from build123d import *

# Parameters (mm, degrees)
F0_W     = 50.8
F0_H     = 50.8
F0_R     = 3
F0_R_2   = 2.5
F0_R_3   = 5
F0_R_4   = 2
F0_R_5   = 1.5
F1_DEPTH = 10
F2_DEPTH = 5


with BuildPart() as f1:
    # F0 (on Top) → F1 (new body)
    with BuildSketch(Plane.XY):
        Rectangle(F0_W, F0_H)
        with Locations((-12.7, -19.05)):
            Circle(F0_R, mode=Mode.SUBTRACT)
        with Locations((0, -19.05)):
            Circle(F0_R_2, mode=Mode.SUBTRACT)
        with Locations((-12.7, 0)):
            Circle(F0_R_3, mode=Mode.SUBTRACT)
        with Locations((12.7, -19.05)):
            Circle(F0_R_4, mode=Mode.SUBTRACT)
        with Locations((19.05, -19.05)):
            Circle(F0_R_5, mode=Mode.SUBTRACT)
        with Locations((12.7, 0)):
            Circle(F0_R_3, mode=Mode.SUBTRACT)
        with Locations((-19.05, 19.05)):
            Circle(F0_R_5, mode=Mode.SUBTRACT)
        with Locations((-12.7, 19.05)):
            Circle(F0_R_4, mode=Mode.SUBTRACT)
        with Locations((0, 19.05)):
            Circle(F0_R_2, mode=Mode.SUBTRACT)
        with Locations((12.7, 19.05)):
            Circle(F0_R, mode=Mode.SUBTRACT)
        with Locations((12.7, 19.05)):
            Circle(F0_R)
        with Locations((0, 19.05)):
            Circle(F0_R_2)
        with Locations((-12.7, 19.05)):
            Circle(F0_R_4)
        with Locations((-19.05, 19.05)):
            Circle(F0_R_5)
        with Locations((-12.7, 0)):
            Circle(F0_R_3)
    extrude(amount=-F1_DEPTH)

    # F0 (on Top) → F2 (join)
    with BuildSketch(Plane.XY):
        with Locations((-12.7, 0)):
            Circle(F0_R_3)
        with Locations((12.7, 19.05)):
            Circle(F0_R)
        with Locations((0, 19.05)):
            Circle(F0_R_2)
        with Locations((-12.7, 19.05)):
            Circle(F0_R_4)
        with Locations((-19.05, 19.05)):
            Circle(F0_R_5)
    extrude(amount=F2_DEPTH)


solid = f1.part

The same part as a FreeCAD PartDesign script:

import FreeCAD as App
import Part
import Sketcher

V = App.Vector
Q = App.Units.Quantity


def add_polygon(sketch, points):
    """Adds a closed chain of lines whose ends are joined by coincident constraints."""
    first, n = sketch.GeometryCount, len(points)
    for a, b in zip(points, points[1:] + points[:1]):
        sketch.addGeometry(Part.LineSegment(App.Vector(*a, 0), App.Vector(*b, 0)), False)
    for i in range(n):
        sketch.addConstraint(Sketcher.Constraint("Coincident", first + i, 2, first + (i + 1) % n, 1))

doc = App.newDocument("Part")
params = doc.addObject("Spreadsheet::Sheet", "Params")
for row, (alias, value) in enumerate([
    ("sketch1_diameter", "6 mm"),
    ("sketch1_diameter2", "5 mm"),
    ("sketch1_diameter3", "4 mm"),
    ("sketch1_diameter4", "3 mm"),
    ("sketch1_diameter5", "10 mm"),
    ("pad1_length", "10 mm"),
    ("sketch2_diameter", "10 mm"),
    ("sketch2_diameter2", "6 mm"),
    ("sketch2_diameter3", "5 mm"),
    ("sketch2_diameter4", "4 mm"),
    ("sketch2_diameter5", "3 mm"),
    ("pad2_length", "5 mm"),
], start=1):
    params.set(f"A{row}", alias)
    params.set(f"B{row}", "=" + value)
    params.setAlias(f"B{row}", alias)

body = doc.addObject("PartDesign::Body", "Body")

# Sketch on XY plane
sketch1 = doc.addObject("Sketcher::SketchObject", "Sketch")
body.addObject(sketch1)
sketch1.AttachmentSupport = (doc.XY_Plane, [""])
sketch1.MapMode = "FlatFace"
add_polygon(sketch1, [(-25.4, 25.4), (-25.4, -25.4), (25.4, -25.4), (25.4, 25.4)])  # lines 0-3
sketch1.addGeometry(Part.Circle(V(-12.7, -19.1, 0), V(0, 0, 1), 3), False)  # 4
sketch1.addGeometry(Part.Circle(V(0, -19.1, 0), V(0, 0, 1), 2.5), False)  # 5
sketch1.addGeometry(Part.Circle(V(12.7, -19.1, 0), V(0, 0, 1), 2), False)  # 6
sketch1.addGeometry(Part.Circle(V(19.1, -19.1, 0), V(0, 0, 1), 1.5), False)  # 7
sketch1.addGeometry(Part.Circle(V(12.7, 0, 0), V(0, 0, 1), 5), False)  # 8
sketch1.addConstraint(Sketcher.Constraint("Vertical", 0))
sketch1.addConstraint(Sketcher.Constraint("Horizontal", 1))
sketch1.addConstraint(Sketcher.Constraint("Vertical", 2))
sketch1.addConstraint(Sketcher.Constraint("Horizontal", 3))
sketch1.addConstraint(Sketcher.Constraint("Symmetric", 0, 2, 2, 2, -1, 1))
sketch1.addConstraint(Sketcher.Constraint("Symmetric", 4, 3, 6, 3, -2))
sketch1.addConstraint(Sketcher.Constraint("PointOnObject", 5, 3, -2))
sketch1.addConstraint(Sketcher.Constraint("PointOnObject", 8, 3, -1))
sketch1.addConstraint(Sketcher.Constraint("Horizontal", 4, 3, 5, 3))
sketch1.addConstraint(Sketcher.Constraint("Horizontal", 6, 3, 7, 3))
sketch1.addConstraint(Sketcher.Constraint("Vertical", 6, 3, 8, 3))
sketch1.addConstraint(Sketcher.Constraint("Equal", 3, 0))
sketch1.addConstraint(Sketcher.Constraint("Diameter", 4, Q("6 mm")))
sketch1.addConstraint(Sketcher.Constraint("Diameter", 5, Q("5 mm")))
sketch1.addConstraint(Sketcher.Constraint("Diameter", 6, Q("4 mm")))
sketch1.addConstraint(Sketcher.Constraint("Diameter", 7, Q("3 mm")))
sketch1.addConstraint(Sketcher.Constraint("Diameter", 8, Q("10 mm")))
sketch1.addConstraint(Sketcher.Constraint("DistanceX", 1, 1, 1, 2, Q("50.8 mm")))
sketch1.addConstraint(Sketcher.Constraint("DistanceX", 4, 3, -1, 1, Q("12.7 mm")))
sketch1.addConstraint(Sketcher.Constraint("DistanceY", 4, 3, -1, 1, Q("19.05 mm")))
sketch1.addConstraint(Sketcher.Constraint("DistanceX", -1, 1, 7, 3, Q("19.05 mm")))
sketch1.setExpression("Constraints[16]", "Params.sketch1_diameter")
sketch1.setExpression("Constraints[17]", "Params.sketch1_diameter2")
sketch1.setExpression("Constraints[18]", "Params.sketch1_diameter3")
sketch1.setExpression("Constraints[19]", "Params.sketch1_diameter4")
sketch1.setExpression("Constraints[20]", "Params.sketch1_diameter5")
pad1 = doc.addObject("PartDesign::Pad", "Pad")
body.addObject(pad1)
pad1.Profile = sketch1
pad1.setExpression("Length", "Params.pad1_length")
pad1.Reversed = True

# Sketch on XY plane
sketch2 = doc.addObject("Sketcher::SketchObject", "Sketch001")
body.addObject(sketch2)
sketch2.AttachmentSupport = (doc.XY_Plane, [""])
sketch2.MapMode = "FlatFace"
sketch2.addGeometry(Part.Circle(V(-12.7, 0, 0), V(0, 0, 1), 5), False)
sketch2.addGeometry(Part.Circle(V(12.7, 19.1, 0), V(0, 0, 1), 3), False)
sketch2.addGeometry(Part.Circle(V(0, 19.1, 0), V(0, 0, 1), 2.5), False)
sketch2.addGeometry(Part.Circle(V(-12.7, 19.1, 0), V(0, 0, 1), 2), False)
sketch2.addGeometry(Part.Circle(V(-19.1, 19.1, 0), V(0, 0, 1), 1.5), False)
sketch2.addConstraint(Sketcher.Constraint("Symmetric", 1, 3, 3, 3, -2))
sketch2.addConstraint(Sketcher.Constraint("PointOnObject", 0, 3, -1))
sketch2.addConstraint(Sketcher.Constraint("PointOnObject", 2, 3, -2))
sketch2.addConstraint(Sketcher.Constraint("Horizontal", 1, 3, 2, 3))
sketch2.addConstraint(Sketcher.Constraint("Horizontal", 3, 3, 4, 3))
sketch2.addConstraint(Sketcher.Constraint("Vertical", 0, 3, 3, 3))
sketch2.addConstraint(Sketcher.Constraint("Diameter", 0, Q("10 mm")))
sketch2.addConstraint(Sketcher.Constraint("Diameter", 1, Q("6 mm")))
sketch2.addConstraint(Sketcher.Constraint("Diameter", 2, Q("5 mm")))
sketch2.addConstraint(Sketcher.Constraint("Diameter", 3, Q("4 mm")))
sketch2.addConstraint(Sketcher.Constraint("Diameter", 4, Q("3 mm")))
sketch2.addConstraint(Sketcher.Constraint("DistanceX", 0, 3, -1, 1, Q("12.7 mm")))
sketch2.addConstraint(Sketcher.Constraint("DistanceY", -1, 1, 1, 3, Q("19.05 mm")))
sketch2.addConstraint(Sketcher.Constraint("DistanceX", 4, 3, -1, 1, Q("19.05 mm")))
sketch2.setExpression("Constraints[6]", "Params.sketch2_diameter")
sketch2.setExpression("Constraints[7]", "Params.sketch2_diameter2")
sketch2.setExpression("Constraints[8]", "Params.sketch2_diameter3")
sketch2.setExpression("Constraints[9]", "Params.sketch2_diameter4")
sketch2.setExpression("Constraints[10]", "Params.sketch2_diameter5")
pad2 = doc.addObject("PartDesign::Pad", "Pad001")
body.addObject(pad2)
pad2.Profile = sketch2
pad2.setExpression("Length", "Params.pad2_length")

doc.recompute()
